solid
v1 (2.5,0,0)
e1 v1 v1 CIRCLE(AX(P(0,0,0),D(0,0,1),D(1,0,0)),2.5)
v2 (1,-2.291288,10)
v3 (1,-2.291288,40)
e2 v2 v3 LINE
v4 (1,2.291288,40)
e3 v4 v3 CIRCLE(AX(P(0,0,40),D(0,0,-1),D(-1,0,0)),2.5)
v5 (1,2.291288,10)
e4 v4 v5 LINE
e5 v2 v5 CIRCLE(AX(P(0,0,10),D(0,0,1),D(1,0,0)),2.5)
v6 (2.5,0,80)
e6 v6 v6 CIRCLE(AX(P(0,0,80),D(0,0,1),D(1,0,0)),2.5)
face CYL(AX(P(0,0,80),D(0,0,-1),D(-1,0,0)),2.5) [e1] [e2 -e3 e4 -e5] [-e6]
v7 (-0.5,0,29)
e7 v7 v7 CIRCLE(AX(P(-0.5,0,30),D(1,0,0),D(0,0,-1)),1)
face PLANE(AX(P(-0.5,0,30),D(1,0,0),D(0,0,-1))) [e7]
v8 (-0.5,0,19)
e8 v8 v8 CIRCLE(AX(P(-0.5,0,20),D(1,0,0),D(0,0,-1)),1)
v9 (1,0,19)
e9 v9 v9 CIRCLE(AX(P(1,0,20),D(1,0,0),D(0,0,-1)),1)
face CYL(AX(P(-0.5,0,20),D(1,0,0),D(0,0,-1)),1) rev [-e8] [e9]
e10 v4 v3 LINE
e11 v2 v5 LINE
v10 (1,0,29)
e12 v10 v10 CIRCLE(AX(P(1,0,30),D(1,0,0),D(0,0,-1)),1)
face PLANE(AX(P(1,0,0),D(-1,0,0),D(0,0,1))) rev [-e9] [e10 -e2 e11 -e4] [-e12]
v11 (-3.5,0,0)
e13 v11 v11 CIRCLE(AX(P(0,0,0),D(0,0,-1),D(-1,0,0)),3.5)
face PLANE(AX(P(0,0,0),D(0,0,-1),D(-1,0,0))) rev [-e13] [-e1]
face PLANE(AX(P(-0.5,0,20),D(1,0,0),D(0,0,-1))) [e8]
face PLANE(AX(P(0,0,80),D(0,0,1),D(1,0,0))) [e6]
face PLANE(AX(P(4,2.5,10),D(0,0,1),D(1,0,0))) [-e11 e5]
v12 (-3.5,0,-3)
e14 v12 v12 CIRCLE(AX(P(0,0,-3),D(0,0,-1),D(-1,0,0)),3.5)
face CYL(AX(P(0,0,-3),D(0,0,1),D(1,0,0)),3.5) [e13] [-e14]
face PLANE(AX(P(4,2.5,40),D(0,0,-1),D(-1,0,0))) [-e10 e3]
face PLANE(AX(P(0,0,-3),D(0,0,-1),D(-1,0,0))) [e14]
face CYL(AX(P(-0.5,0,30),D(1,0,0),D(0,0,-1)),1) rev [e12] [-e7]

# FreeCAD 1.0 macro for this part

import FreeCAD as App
import Part
import Sketcher
Q = App.Units.Quantity

doc = App.newDocument("Part")
body = doc.addObject("PartDesign::Body", "Body")

# Sketch on XY plane
sketch1 = body.newObject("Sketcher::SketchObject", "Sketch")
sketch1.AttachmentSupport = (doc.getObject("XY_Plane"), [""])
sketch1.MapMode = "FlatFace"
sketch1.addGeometry(Part.Circle(App.Vector(0, 0, 0), App.Vector(0, 0, 1), 2.5), False)
sketch1.addConstraint([
    Sketcher.Constraint("Coincident", 0, 3, -1, 1),
    Sketcher.Constraint("Diameter", 0, Q("5 mm")),
])
pad1 = body.newObject("PartDesign::Pad", "Pad")
pad1.Profile = sketch1
pad1.Length = 80

# Sketch on XY plane
sketch2 = body.newObject("Sketcher::SketchObject", "Sketch001")
sketch2.AttachmentSupport = (doc.getObject("XY_Plane"), [""])
sketch2.MapMode = "FlatFace"
sketch2.addGeometry(Part.Circle(App.Vector(0, 0, 0), App.Vector(0, 0, 1), 3.5), False)
sketch2.addConstraint([
    Sketcher.Constraint("Coincident", 0, 3, -1, 1),
    Sketcher.Constraint("Diameter", 0, Q("7 mm")),
])
pad2 = body.newObject("PartDesign::Pad", "Pad001")
pad2.Profile = sketch2
pad2.Length = 3
pad2.Reversed = True

# Sketch on YZ plane
sketch3 = body.newObject("Sketcher::SketchObject", "Sketch002")
sketch3.AttachmentSupport = (doc.getObject("YZ_Plane"), [""])
sketch3.MapMode = "FlatFace"
sketch3.AttachmentOffset = App.Placement(App.Vector(0, 0, 1), App.Rotation())
sketch3.addGeometry([
    Part.LineSegment(App.Vector(2.5, 40, 0), App.Vector(-2.5, 40, 0)),
    Part.LineSegment(App.Vector(-2.5, 40, 0), App.Vector(-2.5, 10, 0)),
    Part.LineSegment(App.Vector(-2.5, 10, 0), App.Vector(2.5, 10, 0)),
    Part.LineSegment(App.Vector(2.5, 10, 0), App.Vector(2.5, 40, 0)),
], False)
sketch3.addConstraint([
    Sketcher.Constraint("Coincident", 0, 2, 1, 1),
    Sketcher.Constraint("Coincident", 1, 2, 2, 1),
    Sketcher.Constraint("Coincident", 2, 2, 3, 1),
    Sketcher.Constraint("Coincident", 3, 2, 0, 1),
    Sketcher.Constraint("Horizontal", 0),
    Sketcher.Constraint("Vertical", 1),
    Sketcher.Constraint("Horizontal", 2),
    Sketcher.Constraint("Vertical", 3),
    Sketcher.Constraint("DistanceX", 0, 2, 0, 1, Q("5 mm")),
    Sketcher.Constraint("DistanceY", 1, 2, 1, 1, Q("30 mm")),
    Sketcher.Constraint("DistanceY", -1, 1, 0, 2, Q("40 mm")),
    Sketcher.Constraint("DistanceX", 0, 2, -1, 1, Q("2.5 mm")),
])
pocket1 = body.newObject("PartDesign::Pocket", "Pocket")
pocket1.Profile = sketch3
pocket1.Length = 3
pocket1.Reversed = True

# Sketch on YZ plane
sketch4 = body.newObject("Sketcher::SketchObject", "Sketch003")
sketch4.AttachmentSupport = (doc.getObject("YZ_Plane"), [""])
sketch4.MapMode = "FlatFace"
sketch4.AttachmentOffset = App.Placement(App.Vector(0, 0, 1), App.Rotation())
sketch4.addGeometry([
    Part.Circle(App.Vector(0, 30, 0), App.Vector(0, 0, 1), 1),
    Part.Circle(App.Vector(0, 20, 0), App.Vector(0, 0, 1), 1),
], False)
sketch4.addConstraint([
    Sketcher.Constraint("Equal", 0, 1),
    Sketcher.Constraint("PointOnObject", 0, 3, -2),
    Sketcher.Constraint("PointOnObject", 1, 3, -2),
    Sketcher.Constraint("Diameter", 0, Q("2 mm")),
    Sketcher.Constraint("DistanceY", -1, 1, 0, 3, Q("30 mm")),
    Sketcher.Constraint("DistanceY", -1, 1, 1, 3, Q("20 mm")),
])
pocket2 = body.newObject("PartDesign::Pocket", "Pocket001")
pocket2.Profile = sketch4
pocket2.Length = 1.5

doc.recompute()
